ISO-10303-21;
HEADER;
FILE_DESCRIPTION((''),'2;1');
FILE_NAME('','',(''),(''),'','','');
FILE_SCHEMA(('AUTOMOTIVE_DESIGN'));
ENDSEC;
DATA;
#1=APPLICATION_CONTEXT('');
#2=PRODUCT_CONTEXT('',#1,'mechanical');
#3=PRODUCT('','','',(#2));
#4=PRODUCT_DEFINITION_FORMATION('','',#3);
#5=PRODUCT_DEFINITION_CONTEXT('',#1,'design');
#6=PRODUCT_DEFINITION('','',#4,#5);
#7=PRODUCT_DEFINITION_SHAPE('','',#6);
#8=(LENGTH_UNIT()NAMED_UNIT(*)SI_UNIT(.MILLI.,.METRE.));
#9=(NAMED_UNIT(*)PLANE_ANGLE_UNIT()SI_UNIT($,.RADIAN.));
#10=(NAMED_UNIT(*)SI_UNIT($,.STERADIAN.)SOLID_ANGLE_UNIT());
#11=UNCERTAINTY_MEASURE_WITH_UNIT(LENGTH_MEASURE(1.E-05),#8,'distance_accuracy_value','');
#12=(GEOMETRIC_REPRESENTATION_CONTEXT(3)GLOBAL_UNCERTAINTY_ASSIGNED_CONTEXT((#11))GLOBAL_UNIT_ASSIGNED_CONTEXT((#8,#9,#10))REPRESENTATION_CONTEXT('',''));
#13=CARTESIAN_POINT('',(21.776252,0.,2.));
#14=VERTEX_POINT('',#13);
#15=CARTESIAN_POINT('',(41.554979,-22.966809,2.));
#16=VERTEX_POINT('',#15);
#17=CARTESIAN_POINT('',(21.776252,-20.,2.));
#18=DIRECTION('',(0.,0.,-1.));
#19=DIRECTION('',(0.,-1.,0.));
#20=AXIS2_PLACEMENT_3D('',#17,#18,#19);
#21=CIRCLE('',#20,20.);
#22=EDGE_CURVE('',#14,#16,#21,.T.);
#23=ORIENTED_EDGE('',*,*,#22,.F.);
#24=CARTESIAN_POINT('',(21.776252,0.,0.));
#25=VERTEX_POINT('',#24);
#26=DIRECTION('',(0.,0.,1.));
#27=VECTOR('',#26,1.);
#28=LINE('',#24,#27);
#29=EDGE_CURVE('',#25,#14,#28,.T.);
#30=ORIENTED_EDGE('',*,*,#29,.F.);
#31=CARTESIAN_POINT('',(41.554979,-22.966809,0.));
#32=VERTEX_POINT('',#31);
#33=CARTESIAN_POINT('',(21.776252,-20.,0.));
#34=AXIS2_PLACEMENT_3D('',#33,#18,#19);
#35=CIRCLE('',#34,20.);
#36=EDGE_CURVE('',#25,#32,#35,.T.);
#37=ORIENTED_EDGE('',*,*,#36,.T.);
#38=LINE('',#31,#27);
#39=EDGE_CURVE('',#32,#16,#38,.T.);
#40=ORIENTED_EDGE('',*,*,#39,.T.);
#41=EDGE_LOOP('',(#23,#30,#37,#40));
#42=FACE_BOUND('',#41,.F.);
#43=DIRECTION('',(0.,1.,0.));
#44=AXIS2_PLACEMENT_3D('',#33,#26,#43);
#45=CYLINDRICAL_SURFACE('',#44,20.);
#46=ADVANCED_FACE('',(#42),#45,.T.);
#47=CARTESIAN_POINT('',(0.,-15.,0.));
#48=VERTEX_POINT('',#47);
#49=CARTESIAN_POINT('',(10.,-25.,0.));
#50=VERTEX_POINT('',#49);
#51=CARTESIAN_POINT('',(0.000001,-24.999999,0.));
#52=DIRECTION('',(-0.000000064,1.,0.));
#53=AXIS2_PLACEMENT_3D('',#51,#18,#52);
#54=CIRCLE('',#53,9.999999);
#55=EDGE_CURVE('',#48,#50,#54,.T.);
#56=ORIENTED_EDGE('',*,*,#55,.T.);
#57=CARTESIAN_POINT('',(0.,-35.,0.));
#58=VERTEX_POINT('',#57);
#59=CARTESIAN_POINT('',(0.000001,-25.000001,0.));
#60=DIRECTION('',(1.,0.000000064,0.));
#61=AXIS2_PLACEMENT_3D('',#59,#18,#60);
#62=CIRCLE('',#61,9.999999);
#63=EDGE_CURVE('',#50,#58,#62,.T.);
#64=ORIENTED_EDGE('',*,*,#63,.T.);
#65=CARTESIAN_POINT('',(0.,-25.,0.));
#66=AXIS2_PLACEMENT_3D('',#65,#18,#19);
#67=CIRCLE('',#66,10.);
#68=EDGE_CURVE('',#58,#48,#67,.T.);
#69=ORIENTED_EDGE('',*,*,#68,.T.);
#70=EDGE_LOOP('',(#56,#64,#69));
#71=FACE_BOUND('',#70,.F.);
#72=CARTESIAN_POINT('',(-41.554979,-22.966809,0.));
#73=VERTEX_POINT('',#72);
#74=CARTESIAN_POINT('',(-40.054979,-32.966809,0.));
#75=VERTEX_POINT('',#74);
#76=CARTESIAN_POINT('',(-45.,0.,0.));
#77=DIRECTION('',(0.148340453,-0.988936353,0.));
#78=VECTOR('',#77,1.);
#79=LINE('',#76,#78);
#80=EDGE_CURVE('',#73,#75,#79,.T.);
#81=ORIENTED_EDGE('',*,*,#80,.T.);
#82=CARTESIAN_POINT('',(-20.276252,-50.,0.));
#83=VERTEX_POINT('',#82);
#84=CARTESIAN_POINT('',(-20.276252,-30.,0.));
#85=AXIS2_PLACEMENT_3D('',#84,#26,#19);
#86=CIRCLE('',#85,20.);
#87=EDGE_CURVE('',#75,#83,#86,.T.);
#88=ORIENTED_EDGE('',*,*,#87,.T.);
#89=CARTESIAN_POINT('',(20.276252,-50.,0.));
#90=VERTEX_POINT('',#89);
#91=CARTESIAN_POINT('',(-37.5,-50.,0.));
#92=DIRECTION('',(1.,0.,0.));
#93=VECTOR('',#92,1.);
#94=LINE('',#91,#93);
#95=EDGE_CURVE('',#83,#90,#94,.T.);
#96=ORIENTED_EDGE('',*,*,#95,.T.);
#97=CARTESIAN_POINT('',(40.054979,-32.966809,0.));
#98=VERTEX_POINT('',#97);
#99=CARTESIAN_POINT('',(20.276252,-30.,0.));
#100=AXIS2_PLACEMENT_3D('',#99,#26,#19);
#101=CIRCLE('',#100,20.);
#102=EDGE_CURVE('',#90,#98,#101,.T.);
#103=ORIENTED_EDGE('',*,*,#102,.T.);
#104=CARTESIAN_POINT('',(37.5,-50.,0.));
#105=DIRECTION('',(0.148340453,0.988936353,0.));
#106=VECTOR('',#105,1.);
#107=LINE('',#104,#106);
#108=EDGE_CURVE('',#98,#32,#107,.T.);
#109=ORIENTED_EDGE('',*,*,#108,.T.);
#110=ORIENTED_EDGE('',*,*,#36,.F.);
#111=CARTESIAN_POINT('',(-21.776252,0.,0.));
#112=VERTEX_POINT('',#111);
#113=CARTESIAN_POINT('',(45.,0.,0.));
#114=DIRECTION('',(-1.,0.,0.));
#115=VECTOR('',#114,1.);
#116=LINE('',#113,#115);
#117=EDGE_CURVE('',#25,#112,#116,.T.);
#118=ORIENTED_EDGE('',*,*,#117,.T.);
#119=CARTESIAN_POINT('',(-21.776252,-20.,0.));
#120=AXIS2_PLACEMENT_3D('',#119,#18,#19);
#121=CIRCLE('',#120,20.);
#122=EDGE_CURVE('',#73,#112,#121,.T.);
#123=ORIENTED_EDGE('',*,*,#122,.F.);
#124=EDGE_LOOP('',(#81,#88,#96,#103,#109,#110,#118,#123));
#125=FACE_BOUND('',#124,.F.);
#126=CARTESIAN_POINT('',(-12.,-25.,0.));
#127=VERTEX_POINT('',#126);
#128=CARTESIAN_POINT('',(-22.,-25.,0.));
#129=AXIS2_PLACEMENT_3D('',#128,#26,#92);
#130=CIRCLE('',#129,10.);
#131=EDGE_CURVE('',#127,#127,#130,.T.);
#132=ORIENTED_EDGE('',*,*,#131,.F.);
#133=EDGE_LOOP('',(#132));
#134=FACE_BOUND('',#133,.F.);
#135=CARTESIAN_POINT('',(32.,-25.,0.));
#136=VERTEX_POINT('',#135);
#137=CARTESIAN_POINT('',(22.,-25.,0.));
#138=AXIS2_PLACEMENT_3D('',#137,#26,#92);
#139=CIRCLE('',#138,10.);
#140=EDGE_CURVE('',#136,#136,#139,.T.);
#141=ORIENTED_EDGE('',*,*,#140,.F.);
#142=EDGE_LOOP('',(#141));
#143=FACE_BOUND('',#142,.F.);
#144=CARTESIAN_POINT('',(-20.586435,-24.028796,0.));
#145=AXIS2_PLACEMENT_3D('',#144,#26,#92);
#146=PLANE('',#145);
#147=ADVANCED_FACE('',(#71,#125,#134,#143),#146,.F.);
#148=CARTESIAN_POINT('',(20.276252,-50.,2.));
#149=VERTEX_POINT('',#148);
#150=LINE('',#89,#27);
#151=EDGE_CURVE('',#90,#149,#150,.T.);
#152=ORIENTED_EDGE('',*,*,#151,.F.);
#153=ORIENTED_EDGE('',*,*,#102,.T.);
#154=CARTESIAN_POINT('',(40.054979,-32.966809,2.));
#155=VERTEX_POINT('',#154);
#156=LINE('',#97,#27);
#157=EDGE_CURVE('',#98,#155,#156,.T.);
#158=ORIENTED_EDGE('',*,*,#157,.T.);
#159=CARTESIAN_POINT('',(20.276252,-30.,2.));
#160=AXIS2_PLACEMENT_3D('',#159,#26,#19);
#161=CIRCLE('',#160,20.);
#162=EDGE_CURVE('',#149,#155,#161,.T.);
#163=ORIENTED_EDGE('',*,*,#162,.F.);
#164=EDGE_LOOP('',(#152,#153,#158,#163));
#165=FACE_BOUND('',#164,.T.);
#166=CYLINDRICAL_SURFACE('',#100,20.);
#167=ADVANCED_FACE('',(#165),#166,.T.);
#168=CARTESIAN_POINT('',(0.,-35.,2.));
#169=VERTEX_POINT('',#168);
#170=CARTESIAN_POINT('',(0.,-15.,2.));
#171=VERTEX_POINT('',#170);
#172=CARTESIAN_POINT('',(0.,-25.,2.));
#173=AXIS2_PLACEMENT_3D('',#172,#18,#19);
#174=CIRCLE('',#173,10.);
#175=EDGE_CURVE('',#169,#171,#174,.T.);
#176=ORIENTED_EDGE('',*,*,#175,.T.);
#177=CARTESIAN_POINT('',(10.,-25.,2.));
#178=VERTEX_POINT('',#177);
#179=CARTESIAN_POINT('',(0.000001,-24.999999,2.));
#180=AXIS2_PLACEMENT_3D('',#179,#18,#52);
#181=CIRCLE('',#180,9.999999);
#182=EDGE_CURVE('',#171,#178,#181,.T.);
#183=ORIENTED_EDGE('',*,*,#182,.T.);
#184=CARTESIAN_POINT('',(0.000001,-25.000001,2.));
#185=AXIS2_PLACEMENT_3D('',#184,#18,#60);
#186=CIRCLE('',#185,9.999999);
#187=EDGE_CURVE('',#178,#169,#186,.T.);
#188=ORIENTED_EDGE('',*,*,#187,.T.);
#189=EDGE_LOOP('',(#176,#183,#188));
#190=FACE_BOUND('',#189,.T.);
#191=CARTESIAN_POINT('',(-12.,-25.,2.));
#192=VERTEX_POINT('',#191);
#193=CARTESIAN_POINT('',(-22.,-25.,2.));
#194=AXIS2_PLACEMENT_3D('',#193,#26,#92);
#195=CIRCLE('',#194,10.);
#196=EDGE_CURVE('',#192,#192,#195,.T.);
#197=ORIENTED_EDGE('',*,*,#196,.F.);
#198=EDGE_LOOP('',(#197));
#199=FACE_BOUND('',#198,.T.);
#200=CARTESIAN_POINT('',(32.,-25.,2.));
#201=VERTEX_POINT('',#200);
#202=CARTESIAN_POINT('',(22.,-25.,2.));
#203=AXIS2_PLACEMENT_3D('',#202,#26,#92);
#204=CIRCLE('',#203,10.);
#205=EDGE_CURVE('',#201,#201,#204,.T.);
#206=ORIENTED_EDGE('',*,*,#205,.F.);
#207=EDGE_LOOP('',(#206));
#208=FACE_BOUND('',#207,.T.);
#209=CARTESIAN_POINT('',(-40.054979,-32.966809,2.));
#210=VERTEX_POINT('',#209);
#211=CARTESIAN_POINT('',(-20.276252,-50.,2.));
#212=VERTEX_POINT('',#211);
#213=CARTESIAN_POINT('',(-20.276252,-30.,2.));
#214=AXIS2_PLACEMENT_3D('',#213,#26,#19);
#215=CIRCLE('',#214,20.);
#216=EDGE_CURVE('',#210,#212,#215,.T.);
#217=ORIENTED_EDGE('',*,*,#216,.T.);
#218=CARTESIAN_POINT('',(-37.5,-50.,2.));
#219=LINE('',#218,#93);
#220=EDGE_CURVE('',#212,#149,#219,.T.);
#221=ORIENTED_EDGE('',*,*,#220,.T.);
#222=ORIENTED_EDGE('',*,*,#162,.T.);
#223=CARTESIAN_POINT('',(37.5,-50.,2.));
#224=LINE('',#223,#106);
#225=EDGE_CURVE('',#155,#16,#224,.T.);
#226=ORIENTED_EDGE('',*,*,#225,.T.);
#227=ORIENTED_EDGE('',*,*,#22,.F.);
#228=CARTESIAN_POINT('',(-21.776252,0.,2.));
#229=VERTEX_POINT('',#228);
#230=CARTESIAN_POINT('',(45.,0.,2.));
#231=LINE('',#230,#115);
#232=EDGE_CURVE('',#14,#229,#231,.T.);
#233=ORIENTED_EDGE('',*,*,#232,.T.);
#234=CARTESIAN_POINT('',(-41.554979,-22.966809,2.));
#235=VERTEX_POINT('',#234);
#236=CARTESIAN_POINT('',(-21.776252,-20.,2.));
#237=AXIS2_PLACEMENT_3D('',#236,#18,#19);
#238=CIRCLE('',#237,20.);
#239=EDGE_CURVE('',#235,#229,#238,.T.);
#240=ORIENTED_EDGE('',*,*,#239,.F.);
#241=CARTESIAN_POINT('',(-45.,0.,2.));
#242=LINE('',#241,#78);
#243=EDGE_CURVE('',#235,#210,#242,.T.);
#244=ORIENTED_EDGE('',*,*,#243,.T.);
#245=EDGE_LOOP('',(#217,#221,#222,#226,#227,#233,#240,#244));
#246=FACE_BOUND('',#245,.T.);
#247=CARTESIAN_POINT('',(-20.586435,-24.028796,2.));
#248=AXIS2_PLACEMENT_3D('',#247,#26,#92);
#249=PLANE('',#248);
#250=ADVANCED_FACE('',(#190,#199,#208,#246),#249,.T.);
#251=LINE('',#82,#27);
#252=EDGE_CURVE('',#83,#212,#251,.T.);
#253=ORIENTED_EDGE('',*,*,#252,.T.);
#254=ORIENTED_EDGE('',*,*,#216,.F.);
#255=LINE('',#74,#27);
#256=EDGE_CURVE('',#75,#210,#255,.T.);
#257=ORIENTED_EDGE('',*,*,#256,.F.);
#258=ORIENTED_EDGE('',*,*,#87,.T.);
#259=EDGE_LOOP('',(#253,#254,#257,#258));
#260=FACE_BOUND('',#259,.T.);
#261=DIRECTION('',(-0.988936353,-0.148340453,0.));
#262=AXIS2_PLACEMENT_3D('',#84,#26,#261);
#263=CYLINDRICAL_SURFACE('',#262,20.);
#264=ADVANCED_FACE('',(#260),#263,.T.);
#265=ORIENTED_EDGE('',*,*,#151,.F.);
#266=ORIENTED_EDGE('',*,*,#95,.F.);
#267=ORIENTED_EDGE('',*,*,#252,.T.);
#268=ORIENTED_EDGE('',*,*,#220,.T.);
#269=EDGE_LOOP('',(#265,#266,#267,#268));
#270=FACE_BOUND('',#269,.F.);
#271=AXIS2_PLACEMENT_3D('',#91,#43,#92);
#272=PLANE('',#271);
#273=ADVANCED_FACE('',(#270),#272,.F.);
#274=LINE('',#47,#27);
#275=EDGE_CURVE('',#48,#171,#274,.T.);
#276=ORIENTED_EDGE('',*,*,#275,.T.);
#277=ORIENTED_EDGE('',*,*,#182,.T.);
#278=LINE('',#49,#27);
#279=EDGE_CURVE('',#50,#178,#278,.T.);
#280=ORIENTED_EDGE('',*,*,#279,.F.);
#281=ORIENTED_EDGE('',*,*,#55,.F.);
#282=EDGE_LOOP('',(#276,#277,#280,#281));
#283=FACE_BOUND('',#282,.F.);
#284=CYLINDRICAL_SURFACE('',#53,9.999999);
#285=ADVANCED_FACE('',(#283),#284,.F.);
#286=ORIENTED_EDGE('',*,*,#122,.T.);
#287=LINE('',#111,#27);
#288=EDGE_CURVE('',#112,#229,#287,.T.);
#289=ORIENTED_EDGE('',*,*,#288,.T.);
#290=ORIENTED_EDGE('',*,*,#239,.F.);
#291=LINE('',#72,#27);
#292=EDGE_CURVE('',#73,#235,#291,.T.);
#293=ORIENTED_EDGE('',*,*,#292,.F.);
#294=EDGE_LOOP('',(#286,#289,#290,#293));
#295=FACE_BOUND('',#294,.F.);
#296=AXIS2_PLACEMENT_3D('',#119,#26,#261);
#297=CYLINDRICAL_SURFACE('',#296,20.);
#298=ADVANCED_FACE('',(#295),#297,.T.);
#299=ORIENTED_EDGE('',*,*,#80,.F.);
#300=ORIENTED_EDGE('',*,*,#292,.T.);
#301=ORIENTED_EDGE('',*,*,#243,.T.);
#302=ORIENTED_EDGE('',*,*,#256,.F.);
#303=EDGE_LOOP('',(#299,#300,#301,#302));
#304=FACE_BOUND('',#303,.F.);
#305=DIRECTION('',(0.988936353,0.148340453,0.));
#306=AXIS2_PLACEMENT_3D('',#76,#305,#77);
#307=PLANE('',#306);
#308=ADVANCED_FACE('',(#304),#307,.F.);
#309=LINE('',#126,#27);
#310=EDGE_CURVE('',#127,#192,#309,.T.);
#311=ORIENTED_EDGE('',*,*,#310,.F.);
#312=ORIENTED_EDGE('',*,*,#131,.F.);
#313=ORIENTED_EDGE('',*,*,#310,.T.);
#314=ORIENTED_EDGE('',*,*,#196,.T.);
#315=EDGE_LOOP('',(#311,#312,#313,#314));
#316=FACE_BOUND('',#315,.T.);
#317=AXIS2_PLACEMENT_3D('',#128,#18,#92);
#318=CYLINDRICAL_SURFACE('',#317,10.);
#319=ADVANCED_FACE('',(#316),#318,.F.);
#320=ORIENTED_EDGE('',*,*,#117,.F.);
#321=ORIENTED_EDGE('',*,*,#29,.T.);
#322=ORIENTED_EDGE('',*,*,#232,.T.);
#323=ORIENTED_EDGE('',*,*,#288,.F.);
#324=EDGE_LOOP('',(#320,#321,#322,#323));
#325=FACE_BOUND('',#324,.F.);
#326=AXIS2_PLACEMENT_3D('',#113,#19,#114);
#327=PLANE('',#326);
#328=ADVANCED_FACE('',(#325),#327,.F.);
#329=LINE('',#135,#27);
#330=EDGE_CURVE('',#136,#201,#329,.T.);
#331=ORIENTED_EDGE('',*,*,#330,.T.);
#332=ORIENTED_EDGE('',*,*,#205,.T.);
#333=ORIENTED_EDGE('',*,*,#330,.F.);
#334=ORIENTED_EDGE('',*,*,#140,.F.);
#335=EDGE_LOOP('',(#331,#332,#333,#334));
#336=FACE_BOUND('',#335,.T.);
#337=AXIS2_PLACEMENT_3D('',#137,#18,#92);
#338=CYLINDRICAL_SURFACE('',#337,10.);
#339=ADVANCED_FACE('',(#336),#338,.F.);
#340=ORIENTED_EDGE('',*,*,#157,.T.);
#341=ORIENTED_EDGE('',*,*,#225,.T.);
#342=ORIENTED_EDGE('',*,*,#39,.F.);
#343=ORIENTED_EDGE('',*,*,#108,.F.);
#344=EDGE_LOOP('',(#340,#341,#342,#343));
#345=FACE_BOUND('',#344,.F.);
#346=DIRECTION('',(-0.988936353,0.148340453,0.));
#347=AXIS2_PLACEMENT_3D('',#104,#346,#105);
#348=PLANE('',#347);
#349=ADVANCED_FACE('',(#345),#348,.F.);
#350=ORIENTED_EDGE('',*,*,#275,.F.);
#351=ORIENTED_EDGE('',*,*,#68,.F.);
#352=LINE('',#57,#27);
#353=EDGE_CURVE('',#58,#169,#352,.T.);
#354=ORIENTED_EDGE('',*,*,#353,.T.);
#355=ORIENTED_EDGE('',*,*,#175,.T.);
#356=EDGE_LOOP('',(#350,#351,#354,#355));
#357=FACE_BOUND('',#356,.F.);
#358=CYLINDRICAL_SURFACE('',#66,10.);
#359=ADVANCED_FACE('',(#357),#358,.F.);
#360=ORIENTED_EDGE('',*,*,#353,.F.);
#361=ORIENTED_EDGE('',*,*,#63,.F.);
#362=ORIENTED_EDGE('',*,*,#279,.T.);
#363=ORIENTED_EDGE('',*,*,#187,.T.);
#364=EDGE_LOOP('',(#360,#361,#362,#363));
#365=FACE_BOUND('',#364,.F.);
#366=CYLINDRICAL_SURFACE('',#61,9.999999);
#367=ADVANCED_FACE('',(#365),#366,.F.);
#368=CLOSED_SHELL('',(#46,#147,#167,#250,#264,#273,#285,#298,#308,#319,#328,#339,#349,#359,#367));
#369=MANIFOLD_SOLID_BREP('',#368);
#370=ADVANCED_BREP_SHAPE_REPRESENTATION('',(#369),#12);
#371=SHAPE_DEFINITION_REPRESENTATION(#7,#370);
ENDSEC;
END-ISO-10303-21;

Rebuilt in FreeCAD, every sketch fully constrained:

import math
import FreeCAD as App
import Part
import Sketcher

V = App.Vector


def edges_at(feature, points):
    """Names of the edges that pass closest to the given points."""
    edges = feature.Shape.Edges
    near = lambda p: min(range(len(edges)), key=lambda i: edges[i].distToShape(Part.Vertex(*p))[0])
    return sorted({f"Edge{near(p) + 1}" for p in points})


def add_polygon(sketch, points):
    """Adds a closed chain of lines whose ends are joined by coincident constraints."""
    first, n = sketch.GeometryCount, len(points)
    for a, b in zip(points, points[1:] + points[:1]):
        sketch.addGeometry(Part.LineSegment(App.Vector(*a, 0), App.Vector(*b, 0)), False)
    for i in range(n):
        sketch.addConstraint(Sketcher.Constraint("Coincident", first + i, 2, first + (i + 1) % n, 1))

doc = App.newDocument("Part")
body = doc.addObject("PartDesign::Body", "Body")

# Sketch on XY plane
sketch1 = body.newObject("Sketcher::SketchObject", "Sketch")
sketch1.AttachmentSupport = (doc.getObject("XY_Plane"), [""])
sketch1.MapMode = "FlatFace"
add_polygon(sketch1, [(-45, 0), (-37.5, -50), (37.5, -50), (45, 0)])  # lines 0-3
sketch1.addGeometry(Part.Circle(V(-22, -25, 0), V(0, 0, 1), 10), False)  # 4
sketch1.addGeometry(Part.ArcOfCircle(Part.Circle(V(0, -25, 0), V(0, 0, 1), 10), math.radians(90), math.radians(270)), False)  # 5
sketch1.addGeometry(Part.ArcOfCircle(Part.Circle(V(0.000001, -24.999999, 0), V(0, 0, 1), 9.999999), math.radians(-0.000004), math.radians(90.000004)), False)  # 6
sketch1.addGeometry(Part.ArcOfCircle(Part.Circle(V(0.000001, -25.000001, 0), V(0, 0, 1), 9.999999), math.radians(-90.000004), math.radians(0.000004)), False)  # 7
sketch1.addGeometry(Part.Circle(V(22, -25, 0), V(0, 0, 1), 10), False)  # 8
sketch1.addConstraint([
    Sketcher.Constraint("Tangent", 5, 1, 6, 2),
    Sketcher.Constraint("Tangent", 6, 1, 7, 2),
    Sketcher.Constraint("Tangent", 7, 1, 5, 2),
    Sketcher.Constraint("Horizontal", 1),
    Sketcher.Constraint("Horizontal", 3),
    Sketcher.Constraint("Equal", 4, 5),
    Sketcher.Constraint("Equal", 7, 8),
    Sketcher.Constraint("Symmetric", 2, 2, 3, 2, -1, 1),
    Sketcher.Constraint("Symmetric", 4, 3, 8, 3, -2),
    Sketcher.Constraint("PointOnObject", 5, 3, -2),
    Sketcher.Constraint("PointOnObject", 5, 1, -2),
    Sketcher.Constraint("PointOnObject", 7, 1, -2),
    Sketcher.Constraint("Horizontal", 4, 3, 5, 3),
    Sketcher.Constraint("Horizontal", 8, 3, 6, 1),
    Sketcher.Constraint("Equal", 0, 2),
    Sketcher.Constraint("Diameter", 4, 20.0),
    Sketcher.Constraint("DistanceX", 1, 1, 1, 2, 75.0),
    Sketcher.Constraint("DistanceX", 3, 2, 3, 1, 90.0),
    Sketcher.Constraint("DistanceX", 4, 3, -1, 1, 22.0),
    Sketcher.Constraint("DistanceY", 4, 3, -1, 1, 25.0),
    Sketcher.Constraint("DistanceY", 0, 2, -1, 1, 50.0),
])
pad1 = body.newObject("PartDesign::Pad", "Pad")
pad1.Profile = sketch1
pad1.Length = 2
doc.recompute()

fillet = body.newObject("PartDesign::Fillet", "Fillet")
fillet.Base = (pad1, edges_at(pad1, [
    (-37.5, -50, 1),
    (37.5, -50, 1),
    (45, 0, 1),
    (-45, 0, 1),
]))
fillet.Radius = 20

doc.recompute()
